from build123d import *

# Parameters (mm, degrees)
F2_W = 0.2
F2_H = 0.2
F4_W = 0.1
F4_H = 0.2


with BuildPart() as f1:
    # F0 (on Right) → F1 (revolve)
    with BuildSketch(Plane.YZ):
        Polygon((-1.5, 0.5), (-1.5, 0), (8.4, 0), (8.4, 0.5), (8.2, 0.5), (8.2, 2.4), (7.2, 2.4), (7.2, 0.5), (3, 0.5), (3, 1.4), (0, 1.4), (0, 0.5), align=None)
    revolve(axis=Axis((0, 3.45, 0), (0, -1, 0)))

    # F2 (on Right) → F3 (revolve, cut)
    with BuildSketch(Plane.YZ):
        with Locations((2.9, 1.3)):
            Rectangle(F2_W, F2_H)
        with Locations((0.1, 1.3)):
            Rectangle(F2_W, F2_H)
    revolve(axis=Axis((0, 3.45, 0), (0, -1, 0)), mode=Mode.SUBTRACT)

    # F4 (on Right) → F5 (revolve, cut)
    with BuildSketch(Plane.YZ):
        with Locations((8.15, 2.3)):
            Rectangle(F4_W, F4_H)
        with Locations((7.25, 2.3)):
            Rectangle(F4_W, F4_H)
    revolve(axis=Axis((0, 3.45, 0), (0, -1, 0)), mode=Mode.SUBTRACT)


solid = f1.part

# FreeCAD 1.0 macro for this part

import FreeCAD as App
import Part
import Sketcher
Q = App.Units.Quantity

doc = App.newDocument("Part")
body = doc.addObject("PartDesign::Body", "Body")

# Sketch on YZ plane
sketch1 = doc.addObject("Sketcher::SketchObject", "Sketch")
body.addObject(sketch1)
sketch1.AttachmentSupport = (doc.YZ_Plane, [""])
sketch1.MapMode = "FlatFace"
sketch1.addGeometry([
    Part.LineSegment(App.Vector(-1.5, 0.5, 0), App.Vector(-1.5, 0, 0)),  # 0
    Part.LineSegment(App.Vector(-1.5, 0, 0), App.Vector(8.4, 0, 0)),  # 1
    Part.LineSegment(App.Vector(8.4, 0, 0), App.Vector(8.4, 0.5, 0)),  # 2
    Part.LineSegment(App.Vector(8.4, 0.5, 0), App.Vector(8.2, 0.5, 0)),  # 3
    Part.LineSegment(App.Vector(8.2, 0.5, 0), App.Vector(8.2, 2.4, 0)),  # 4
    Part.LineSegment(App.Vector(8.2, 2.4, 0), App.Vector(7.2, 2.4, 0)),  # 5
    Part.LineSegment(App.Vector(7.2, 2.4, 0), App.Vector(7.2, 0.5, 0)),  # 6
    Part.LineSegment(App.Vector(7.2, 0.5, 0), App.Vector(3, 0.5, 0)),  # 7
    Part.LineSegment(App.Vector(3, 0.5, 0), App.Vector(3, 1.4, 0)),  # 8
    Part.LineSegment(App.Vector(3, 1.4, 0), App.Vector(0, 1.4, 0)),  # 9
    Part.LineSegment(App.Vector(0, 1.4, 0), App.Vector(0, 0.5, 0)),  # 10
    Part.LineSegment(App.Vector(0, 0.5, 0), App.Vector(-1.5, 0.5, 0)),  # 11
], False)
sketch1.addConstraint([
    Sketcher.Constraint("Coincident", 0, 2, 1, 1),
    Sketcher.Constraint("Coincident", 1, 2, 2, 1),
    Sketcher.Constraint("Coincident", 2, 2, 3, 1),
    Sketcher.Constraint("Coincident", 3, 2, 4, 1),
    Sketcher.Constraint("Coincident", 4, 2, 5, 1),
    Sketcher.Constraint("Coincident", 5, 2, 6, 1),
    Sketcher.Constraint("Coincident", 6, 2, 7, 1),
    Sketcher.Constraint("Coincident", 7, 2, 8, 1),
    Sketcher.Constraint("Coincident", 8, 2, 9, 1),
    Sketcher.Constraint("Coincident", 9, 2, 10, 1),
    Sketcher.Constraint("Coincident", 10, 2, 11, 1),
    Sketcher.Constraint("Coincident", 11, 2, 0, 1),
    Sketcher.Constraint("Vertical", 0),
    Sketcher.Constraint("Horizontal", 1),
    Sketcher.Constraint("Vertical", 2),
    Sketcher.Constraint("Horizontal", 3),
    Sketcher.Constraint("Vertical", 4),
    Sketcher.Constraint("Horizontal", 5),
    Sketcher.Constraint("Vertical", 6),
    Sketcher.Constraint("Horizontal", 7),
    Sketcher.Constraint("Vertical", 8),
    Sketcher.Constraint("Horizontal", 9),
    Sketcher.Constraint("Vertical", 10),
    Sketcher.Constraint("Horizontal", 11),
    Sketcher.Constraint("PointOnObject", 0, 2, -1),
    Sketcher.Constraint("PointOnObject", 9, 2, -2),
    Sketcher.Constraint("Horizontal", 3, 2, 6, 2),
    Sketcher.Constraint("Horizontal", 7, 2, 10, 2),
    Sketcher.Constraint("DistanceX", 5, 2, 5, 1, Q("1 mm")),
    Sketcher.Constraint("DistanceX", 9, 2, 9, 1, Q("3 mm")),
    Sketcher.Constraint("DistanceX", 1, 1, 1, 2, Q("9.9 mm")),
    Sketcher.Constraint("DistanceX", 3, 2, 3, 1, Q("0.2 mm")),
    Sketcher.Constraint("DistanceX", 7, 2, 7, 1, Q("4.2 mm")),
    Sketcher.Constraint("DistanceY", 0, 2, 0, 1, Q("0.5 mm")),
    Sketcher.Constraint("DistanceY", 4, 1, 4, 2, Q("1.9 mm")),
    Sketcher.Constraint("DistanceY", 8, 1, 8, 2, Q("0.9 mm")),
])
revolution = doc.addObject("PartDesign::Revolution", "Revolution")
body.addObject(revolution)
revolution.Profile = sketch1
revolution.ReferenceAxis = (sketch1, ["H_Axis"])
revolution.Angle = 360

# Sketch on YZ plane
sketch2 = doc.addObject("Sketcher::SketchObject", "Sketch001")
body.addObject(sketch2)
sketch2.AttachmentSupport = (doc.YZ_Plane, [""])
sketch2.MapMode = "FlatFace"
sketch2.addGeometry([
    Part.LineSegment(App.Vector(2.8, 1.4, 0), App.Vector(2.8, 1.2, 0)),  # 0
    Part.LineSegment(App.Vector(2.8, 1.2, 0), App.Vector(3, 1.2, 0)),  # 1
    Part.LineSegment(App.Vector(3, 1.2, 0), App.Vector(3, 1.4, 0)),  # 2
    Part.LineSegment(App.Vector(3, 1.4, 0), App.Vector(2.8, 1.4, 0)),  # 3
    Part.LineSegment(App.Vector(0, 1.4, 0), App.Vector(0, 1.2, 0)),  # 4
    Part.LineSegment(App.Vector(0, 1.2, 0), App.Vector(0.2, 1.2, 0)),  # 5
    Part.LineSegment(App.Vector(0.2, 1.2, 0), App.Vector(0.2, 1.4, 0)),  # 6
    Part.LineSegment(App.Vector(0.2, 1.4, 0), App.Vector(0, 1.4, 0)),  # 7
], False)
sketch2.addConstraint([
    Sketcher.Constraint("Coincident", 0, 2, 1, 1),
    Sketcher.Constraint("Coincident", 1, 2, 2, 1),
    Sketcher.Constraint("Coincident", 2, 2, 3, 1),
    Sketcher.Constraint("Coincident", 3, 2, 0, 1),
    Sketcher.Constraint("Coincident", 4, 2, 5, 1),
    Sketcher.Constraint("Coincident", 5, 2, 6, 1),
    Sketcher.Constraint("Coincident", 6, 2, 7, 1),
    Sketcher.Constraint("Coincident", 7, 2, 4, 1),
    Sketcher.Constraint("Vertical", 0),
    Sketcher.Constraint("Horizontal", 1),
    Sketcher.Constraint("Vertical", 2),
    Sketcher.Constraint("Horizontal", 3),
    Sketcher.Constraint("Vertical", 4),
    Sketcher.Constraint("Horizontal", 5),
    Sketcher.Constraint("Vertical", 6),
    Sketcher.Constraint("Horizontal", 7),
    Sketcher.Constraint("PointOnObject", 4, 2, -2),
    Sketcher.Constraint("Horizontal", 1, 2, 4, 2),
    Sketcher.Constraint("Horizontal", 3, 2, 6, 2),
    Sketcher.Constraint("Equal", 3, 5),
    Sketcher.Constraint("Equal", 7, 0),
    Sketcher.Constraint("DistanceX", 1, 1, 1, 2, Q("0.2 mm")),
    Sketcher.Constraint("DistanceX", -1, 1, 1, 2, Q("3 mm")),
    Sketcher.Constraint("DistanceY", -1, 1, 0, 2, Q("1.2 mm")),
])
groove = doc.addObject("PartDesign::Groove", "Groove")
body.addObject(groove)
groove.Profile = sketch2
groove.ReferenceAxis = (sketch2, ["H_Axis"])
groove.Angle = 360

# Sketch on YZ plane
sketch3 = doc.addObject("Sketcher::SketchObject", "Sketch002")
body.addObject(sketch3)
sketch3.AttachmentSupport = (doc.YZ_Plane, [""])
sketch3.MapMode = "FlatFace"
sketch3.addGeometry([
    Part.LineSegment(App.Vector(8.1, 2.4, 0), App.Vector(8.1, 2.2, 0)),  # 0
    Part.LineSegment(App.Vector(8.1, 2.2, 0), App.Vector(8.2, 2.2, 0)),  # 1
    Part.LineSegment(App.Vector(8.2, 2.2, 0), App.Vector(8.2, 2.4, 0)),  # 2
    Part.LineSegment(App.Vector(8.2, 2.4, 0), App.Vector(8.1, 2.4, 0)),  # 3
    Part.LineSegment(App.Vector(7.2, 2.4, 0), App.Vector(7.2, 2.2, 0)),  # 4
    Part.LineSegment(App.Vector(7.2, 2.2, 0), App.Vector(7.3, 2.2, 0)),  # 5
    Part.LineSegment(App.Vector(7.3, 2.2, 0), App.Vector(7.3, 2.4, 0)),  # 6
    Part.LineSegment(App.Vector(7.3, 2.4, 0), App.Vector(7.2, 2.4, 0)),  # 7
], False)
sketch3.addConstraint([
    Sketcher.Constraint("Coincident", 0, 2, 1, 1),
    Sketcher.Constraint("Coincident", 1, 2, 2, 1),
    Sketcher.Constraint("Coincident", 2, 2, 3, 1),
    Sketcher.Constraint("Coincident", 3, 2, 0, 1),
    Sketcher.Constraint("Coincident", 4, 2, 5, 1),
    Sketcher.Constraint("Coincident", 5, 2, 6, 1),
    Sketcher.Constraint("Coincident", 6, 2, 7, 1),
    Sketcher.Constraint("Coincident", 7, 2, 4, 1),
    Sketcher.Constraint("Vertical", 0),
    Sketcher.Constraint("Horizontal", 1),
    Sketcher.Constraint("Vertical", 2),
    Sketcher.Constraint("Horizontal", 3),
    Sketcher.Constraint("Vertical", 4),
    Sketcher.Constraint("Horizontal", 5),
    Sketcher.Constraint("Vertical", 6),
    Sketcher.Constraint("Horizontal", 7),
    Sketcher.Constraint("Horizontal", 1, 2, 4, 2),
    Sketcher.Constraint("Horizontal", 3, 2, 6, 2),
    Sketcher.Constraint("Equal", 3, 5),
    Sketcher.Constraint("DistanceX", 1, 1, 1, 2, Q("0.1 mm")),
    Sketcher.Constraint("DistanceY", 0, 2, 0, 1, Q("0.2 mm")),
    Sketcher.Constraint("DistanceX", 4, 2, 1, 2, Q("1 mm")),
    Sketcher.Constraint("DistanceX", -1, 1, 0, 2, Q("8.1 mm")),
    Sketcher.Constraint("DistanceY", -1, 1, 0, 2, Q("2.2 mm")),
])
groove2 = doc.addObject("PartDesign::Groove", "Groove001")
body.addObject(groove2)
groove2.Profile = sketch3
groove2.ReferenceAxis = (sketch3, ["H_Axis"])
groove2.Angle = 360

doc.recompute()
